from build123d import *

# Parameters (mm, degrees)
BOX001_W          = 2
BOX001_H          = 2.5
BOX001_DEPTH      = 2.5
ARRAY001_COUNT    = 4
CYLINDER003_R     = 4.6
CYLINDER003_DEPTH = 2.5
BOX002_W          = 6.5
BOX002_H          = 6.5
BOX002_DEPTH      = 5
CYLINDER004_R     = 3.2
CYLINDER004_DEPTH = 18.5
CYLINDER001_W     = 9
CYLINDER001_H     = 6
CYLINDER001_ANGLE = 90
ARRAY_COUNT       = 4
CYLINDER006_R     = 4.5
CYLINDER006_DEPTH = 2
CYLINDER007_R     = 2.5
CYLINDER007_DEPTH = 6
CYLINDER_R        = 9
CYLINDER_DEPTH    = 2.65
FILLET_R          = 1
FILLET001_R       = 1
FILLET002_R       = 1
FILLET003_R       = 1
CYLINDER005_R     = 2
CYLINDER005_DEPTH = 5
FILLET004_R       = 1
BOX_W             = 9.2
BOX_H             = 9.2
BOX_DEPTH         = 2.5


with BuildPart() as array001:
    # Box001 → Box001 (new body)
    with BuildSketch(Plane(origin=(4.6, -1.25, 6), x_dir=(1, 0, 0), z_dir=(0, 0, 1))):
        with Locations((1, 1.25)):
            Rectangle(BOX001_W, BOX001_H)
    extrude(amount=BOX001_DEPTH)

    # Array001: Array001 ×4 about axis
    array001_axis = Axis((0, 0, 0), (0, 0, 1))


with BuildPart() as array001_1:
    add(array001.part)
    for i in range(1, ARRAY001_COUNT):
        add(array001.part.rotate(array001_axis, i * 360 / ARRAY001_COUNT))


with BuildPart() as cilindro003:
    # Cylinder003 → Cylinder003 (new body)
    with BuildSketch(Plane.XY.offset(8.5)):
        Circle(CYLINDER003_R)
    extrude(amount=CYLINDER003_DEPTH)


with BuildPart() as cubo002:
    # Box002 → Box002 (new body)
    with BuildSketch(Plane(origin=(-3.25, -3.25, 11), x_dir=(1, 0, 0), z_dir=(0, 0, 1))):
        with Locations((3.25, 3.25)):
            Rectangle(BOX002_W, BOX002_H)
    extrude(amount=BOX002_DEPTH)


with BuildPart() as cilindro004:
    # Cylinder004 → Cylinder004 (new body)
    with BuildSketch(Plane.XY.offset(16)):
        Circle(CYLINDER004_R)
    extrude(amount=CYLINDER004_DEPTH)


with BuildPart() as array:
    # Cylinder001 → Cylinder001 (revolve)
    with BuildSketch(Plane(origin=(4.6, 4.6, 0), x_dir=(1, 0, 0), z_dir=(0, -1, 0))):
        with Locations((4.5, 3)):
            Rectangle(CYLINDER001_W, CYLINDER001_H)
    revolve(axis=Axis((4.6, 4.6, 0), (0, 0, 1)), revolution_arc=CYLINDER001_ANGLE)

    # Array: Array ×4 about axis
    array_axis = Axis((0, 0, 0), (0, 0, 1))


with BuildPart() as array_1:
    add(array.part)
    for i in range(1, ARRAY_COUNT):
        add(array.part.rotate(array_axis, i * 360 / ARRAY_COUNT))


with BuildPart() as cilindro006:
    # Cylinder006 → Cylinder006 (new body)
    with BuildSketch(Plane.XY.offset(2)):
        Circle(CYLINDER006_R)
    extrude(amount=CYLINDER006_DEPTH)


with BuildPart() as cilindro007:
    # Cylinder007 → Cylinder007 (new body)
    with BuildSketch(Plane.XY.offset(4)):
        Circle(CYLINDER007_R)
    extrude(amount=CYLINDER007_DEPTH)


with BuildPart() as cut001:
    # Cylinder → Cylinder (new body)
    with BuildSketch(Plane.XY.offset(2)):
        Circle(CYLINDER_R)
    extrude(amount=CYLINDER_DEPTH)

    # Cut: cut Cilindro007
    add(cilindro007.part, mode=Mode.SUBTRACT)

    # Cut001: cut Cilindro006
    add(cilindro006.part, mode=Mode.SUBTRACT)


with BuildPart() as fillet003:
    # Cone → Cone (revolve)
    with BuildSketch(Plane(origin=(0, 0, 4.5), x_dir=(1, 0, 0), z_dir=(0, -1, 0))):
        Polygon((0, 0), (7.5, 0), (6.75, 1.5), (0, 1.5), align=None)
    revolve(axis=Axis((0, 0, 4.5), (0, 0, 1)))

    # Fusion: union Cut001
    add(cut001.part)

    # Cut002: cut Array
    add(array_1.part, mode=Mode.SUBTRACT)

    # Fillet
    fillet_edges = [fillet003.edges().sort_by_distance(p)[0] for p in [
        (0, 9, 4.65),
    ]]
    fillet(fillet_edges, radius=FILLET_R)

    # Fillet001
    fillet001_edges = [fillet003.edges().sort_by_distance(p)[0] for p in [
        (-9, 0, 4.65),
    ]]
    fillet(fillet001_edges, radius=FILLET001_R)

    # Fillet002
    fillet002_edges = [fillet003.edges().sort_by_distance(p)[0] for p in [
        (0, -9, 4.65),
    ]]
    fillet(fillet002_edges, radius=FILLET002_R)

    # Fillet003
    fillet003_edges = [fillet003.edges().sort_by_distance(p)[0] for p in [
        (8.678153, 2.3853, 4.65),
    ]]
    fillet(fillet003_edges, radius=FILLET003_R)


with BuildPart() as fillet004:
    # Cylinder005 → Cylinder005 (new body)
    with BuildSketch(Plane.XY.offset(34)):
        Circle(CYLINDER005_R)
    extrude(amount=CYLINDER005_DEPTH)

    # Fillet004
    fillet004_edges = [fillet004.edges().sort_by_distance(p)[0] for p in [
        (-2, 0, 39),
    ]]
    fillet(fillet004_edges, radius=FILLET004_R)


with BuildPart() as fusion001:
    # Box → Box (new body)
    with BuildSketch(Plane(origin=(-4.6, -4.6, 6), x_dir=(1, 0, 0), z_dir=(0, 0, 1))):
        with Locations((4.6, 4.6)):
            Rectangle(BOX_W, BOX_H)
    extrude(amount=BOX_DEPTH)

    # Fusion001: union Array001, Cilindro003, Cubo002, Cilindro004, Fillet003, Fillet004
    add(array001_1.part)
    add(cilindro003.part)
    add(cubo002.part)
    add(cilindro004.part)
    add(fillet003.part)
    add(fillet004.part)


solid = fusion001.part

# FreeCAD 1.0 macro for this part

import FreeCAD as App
import Part
import Sketcher
Q = App.Units.Quantity


def edges_at(feature, points):
    """Names of the edges that pass closest to the given points."""
    edges = feature.Shape.Edges
    near = lambda p: min(range(len(edges)), key=lambda i: edges[i].distToShape(Part.Vertex(*p))[0])
    return sorted({f"Edge{near(p) + 1}" for p in points})


def add_polygon(sketch, points):
    """Adds a closed chain of lines whose ends are joined by coincident constraints."""
    first, n = sketch.GeometryCount, len(points)
    for a, b in zip(points, points[1:] + points[:1]):
        sketch.addGeometry(Part.LineSegment(App.Vector(*a, 0), App.Vector(*b, 0)), False)
    for i in range(n):
        sketch.addConstraint(Sketcher.Constraint("Coincident", first + i, 2, first + (i + 1) % n, 1))

doc = App.newDocument("Part")
body = doc.addObject("PartDesign::Body", "Body")

sketch1 = body.newObject("Sketcher::SketchObject", "Sketch")
sketch1.AttachmentSupport = (doc.getObject("XY_Plane"), [""])
sketch1.MapMode = "FlatFace"
sketch1.AttachmentOffset = App.Placement(App.Vector(0, 0, 6), App.Rotation())
add_polygon(sketch1, [(4.6, 1.2), (4.6, -1.2), (6.6, -1.2), (6.6, 1.2)])
sketch1.addConstraint([
    Sketcher.Constraint("Vertical", 0),
    Sketcher.Constraint("Horizontal", 1),
    Sketcher.Constraint("Vertical", 2),
    Sketcher.Constraint("Horizontal", 3),
    Sketcher.Constraint("DistanceX", 1, 1, 1, 2, Q("2 mm")),
    Sketcher.Constraint("DistanceY", 0, 2, 0, 1, Q("2.5 mm")),
    Sketcher.Constraint("DistanceX", -1, 1, 0, 2, Q("4.6 mm")),
    Sketcher.Constraint("DistanceY", 0, 2, -1, 1, Q("1.25 mm")),
])
pad1 = body.newObject("PartDesign::Pad", "Pad")
pad1.Profile = sketch1
pad1.Length = 2.5
body2 = doc.addObject("PartDesign::Body", "Body001")
body2.AllowCompound = True
doc.recompute()

body2.BaseFeature = body
doc.recompute()

body3 = doc.addObject("PartDesign::Body", "Body002")
body3.BaseFeature = body
body3.Placement = App.Placement(App.Vector(0, 0, 0), App.Rotation(App.Vector(0, 0, 1), 90))
boolean = body2.newObject("PartDesign::Boolean", "Boolean")
boolean.Type = "Fuse"
boolean.addObjects([body3])
doc.recompute()

body4 = doc.addObject("PartDesign::Body", "Body003")
body4.BaseFeature = body
body4.Placement = App.Placement(App.Vector(0, 0, 0), App.Rotation(App.Vector(0, 0, 1), 180))
boolean2 = body2.newObject("PartDesign::Boolean", "Boolean001")
boolean2.Type = "Fuse"
boolean2.addObjects([body4])
doc.recompute()

body.Placement = App.Placement(App.Vector(0, 0, 0), App.Rotation(App.Vector(0, 0, 1), 270))
boolean3 = body2.newObject("PartDesign::Boolean", "Boolean002")
boolean3.Type = "Fuse"
boolean3.addObjects([body])
body5 = doc.addObject("PartDesign::Body", "Body004")

sketch2 = body5.newObject("Sketcher::SketchObject", "Sketch001")
sketch2.AttachmentSupport = (doc.getObject("XY_Plane004"), [""])
sketch2.MapMode = "FlatFace"
sketch2.AttachmentOffset = App.Placement(App.Vector(0, 0, 8.5), App.Rotation())
sketch2.addGeometry(Part.Circle(App.Vector(0, 0, 0), App.Vector(0, 0, 1), 4.6), False)
sketch2.addConstraint([
    Sketcher.Constraint("Coincident", 0, 3, -1, 1),
    Sketcher.Constraint("Diameter", 0, Q("9.2 mm")),
])
pad2 = body5.newObject("PartDesign::Pad", "Pad001")
pad2.Profile = sketch2
pad2.Length = 2.5
body6 = doc.addObject("PartDesign::Body", "Body005")

sketch3 = body6.newObject("Sketcher::SketchObject", "Sketch002")
sketch3.AttachmentSupport = (doc.getObject("XY_Plane005"), [""])
sketch3.MapMode = "FlatFace"
sketch3.AttachmentOffset = App.Placement(App.Vector(0, 0, 11), App.Rotation())
add_polygon(sketch3, [(-3, 3), (-3, -3), (3, -3), (3, 3)])
sketch3.addConstraint([
    Sketcher.Constraint("Vertical", 0),
    Sketcher.Constraint("Horizontal", 1),
    Sketcher.Constraint("Vertical", 2),
    Sketcher.Constraint("Horizontal", 3),
    Sketcher.Constraint("Symmetric", 0, 2, 2, 2, -1, 1),
    Sketcher.Constraint("Equal", 3, 0),
    Sketcher.Constraint("DistanceX", 1, 1, 1, 2, Q("6.5 mm")),
])
pad3 = body6.newObject("PartDesign::Pad", "Pad002")
pad3.Profile = sketch3
pad3.Length = 5
body7 = doc.addObject("PartDesign::Body", "Body006")

sketch4 = body7.newObject("Sketcher::SketchObject", "Sketch003")
sketch4.AttachmentSupport = (doc.getObject("XY_Plane006"), [""])
sketch4.MapMode = "FlatFace"
sketch4.AttachmentOffset = App.Placement(App.Vector(0, 0, 16), App.Rotation())
sketch4.addGeometry(Part.Circle(App.Vector(0, 0, 0), App.Vector(0, 0, 1), 3.2), False)
sketch4.addConstraint([
    Sketcher.Constraint("Coincident", 0, 3, -1, 1),
    Sketcher.Constraint("Diameter", 0, Q("6.4 mm")),
])
pad4 = body7.newObject("PartDesign::Pad", "Pad003")
pad4.Profile = sketch4
pad4.Length = 18.5
body8 = doc.addObject("PartDesign::Body", "Body007")

sketch5 = body8.newObject("Sketcher::SketchObject", "Sketch004")
sketch5.AttachmentSupport = (doc.getObject("XZ_Plane007"), [""])
sketch5.MapMode = "FlatFace"
sketch5.AttachmentOffset = App.Placement(App.Vector(0, 0, -4.6), App.Rotation())
add_polygon(sketch5, [(5, 6), (5, 0), (14, 0), (14, 6)])
sketch5.addGeometry(Part.LineSegment(App.Vector(5, 0, 0), App.Vector(5, 6, 0)), True)
sketch5.addConstraint([
    Sketcher.Constraint("Vertical", 0),
    Sketcher.Constraint("Horizontal", 1),
    Sketcher.Constraint("Vertical", 2),
    Sketcher.Constraint("Horizontal", 3),
    Sketcher.Constraint("Vertical", 4),
    Sketcher.Constraint("Coincident", 4, 1, 0, 2),
    Sketcher.Constraint("PointOnObject", 0, 2, -1),
    Sketcher.Constraint("Horizontal", 2, 2, 4, 2),
    Sketcher.Constraint("DistanceX", 1, 1, 1, 2, Q("9 mm")),
    Sketcher.Constraint("DistanceY", 0, 2, 0, 1, Q("6 mm")),
    Sketcher.Constraint("DistanceX", -1, 1, 0, 2, Q("4.6 mm")),
])
revolution = body8.newObject("PartDesign::Revolution", "Revolution")
revolution.Profile = sketch5
revolution.ReferenceAxis = (sketch5, ["Axis0"])
revolution.Angle = 90
body9 = doc.addObject("PartDesign::Body", "Body008")
body9.AllowCompound = True
doc.recompute()

body9.BaseFeature = body8
doc.recompute()

body10 = doc.addObject("PartDesign::Body", "Body009")
body10.BaseFeature = body8
body10.Placement = App.Placement(App.Vector(0, 0, 0), App.Rotation(App.Vector(0, 0, 1), 90))
boolean4 = body9.newObject("PartDesign::Boolean", "Boolean003")
boolean4.Type = "Fuse"
boolean4.addObjects([body10])
doc.recompute()

body11 = doc.addObject("PartDesign::Body", "Body010")
body11.BaseFeature = body8
body11.Placement = App.Placement(App.Vector(0, 0, 0), App.Rotation(App.Vector(0, 0, 1), 180))
boolean5 = body9.newObject("PartDesign::Boolean", "Boolean004")
boolean5.Type = "Fuse"
boolean5.addObjects([body11])
doc.recompute()

body8.Placement = App.Placement(App.Vector(0, 0, 0), App.Rotation(App.Vector(0, 0, 1), 270))
boolean6 = body9.newObject("PartDesign::Boolean", "Boolean005")
boolean6.Type = "Fuse"
boolean6.addObjects([body8])
body12 = doc.addObject("PartDesign::Body", "Body011")

sketch6 = body12.newObject("Sketcher::SketchObject", "Sketch005")
sketch6.AttachmentSupport = (doc.getObject("XY_Plane011"), [""])
sketch6.MapMode = "FlatFace"
sketch6.AttachmentOffset = App.Placement(App.Vector(0, 0, 2), App.Rotation())
sketch6.addGeometry(Part.Circle(App.Vector(0, 0, 0), App.Vector(0, 0, 1), 4.5), False)
sketch6.addConstraint([
    Sketcher.Constraint("Coincident", 0, 3, -1, 1),
    Sketcher.Constraint("Diameter", 0, Q("9 mm")),
])
pad5 = body12.newObject("PartDesign::Pad", "Pad004")
pad5.Profile = sketch6
pad5.Length = 2
body13 = doc.addObject("PartDesign::Body", "Body012")

sketch7 = body13.newObject("Sketcher::SketchObject", "Sketch006")
sketch7.AttachmentSupport = (doc.getObject("XY_Plane012"), [""])
sketch7.MapMode = "FlatFace"
sketch7.AttachmentOffset = App.Placement(App.Vector(0, 0, 4), App.Rotation())
sketch7.addGeometry(Part.Circle(App.Vector(0, 0, 0), App.Vector(0, 0, 1), 2.5), False)
sketch7.addConstraint([
    Sketcher.Constraint("Coincident", 0, 3, -1, 1),
    Sketcher.Constraint("Diameter", 0, Q("5 mm")),
])
pad6 = body13.newObject("PartDesign::Pad", "Pad005")
pad6.Profile = sketch7
pad6.Length = 6
body14 = doc.addObject("PartDesign::Body", "Body013")

sketch8 = body14.newObject("Sketcher::SketchObject", "Sketch007")
sketch8.AttachmentSupport = (doc.getObject("XY_Plane013"), [""])
sketch8.MapMode = "FlatFace"
sketch8.AttachmentOffset = App.Placement(App.Vector(0, 0, 2), App.Rotation())
sketch8.addGeometry(Part.Circle(App.Vector(0, 0, 0), App.Vector(0, 0, 1), 9), False)
sketch8.addConstraint([
    Sketcher.Constraint("Coincident", 0, 3, -1, 1),
    Sketcher.Constraint("Diameter", 0, Q("18 mm")),
])
pad7 = body14.newObject("PartDesign::Pad", "Pad006")
pad7.Profile = sketch8
pad7.Length = 2.65
doc.recompute()

boolean7 = body14.newObject("PartDesign::Boolean", "Boolean006")
boolean7.Type = "Cut"
boolean7.addObjects([body13])
doc.recompute()

boolean8 = body14.newObject("PartDesign::Boolean", "Boolean007")
boolean8.Type = "Cut"
boolean8.addObjects([body12])
body15 = doc.addObject("PartDesign::Body", "Body014")

sketch9 = body15.newObject("Sketcher::SketchObject", "Sketch008")
sketch9.AttachmentSupport = (doc.getObject("XZ_Plane014"), [""])
sketch9.MapMode = "FlatFace"
add_polygon(sketch9, [(0, 4.5), (7.5, 4.5), (6.8, 6), (0, 6)])
sketch9.addConstraint([
    Sketcher.Constraint("Horizontal", 0),
    Sketcher.Constraint("Horizontal", 2),
    Sketcher.Constraint("Vertical", 3),
    Sketcher.Constraint("PointOnObject", 2, 2, -2),
    Sketcher.Constraint("DistanceX", 0, 1, 0, 2, Q("7.5 mm")),
    Sketcher.Constraint("DistanceY", 3, 2, 3, 1, Q("1.5 mm")),
    Sketcher.Constraint("DistanceY", -1, 1, 1, 2, Q("6 mm")),
    Sketcher.Constraint("DistanceX", 2, 2, 2, 1, Q("6.75 mm")),
])
revolution2 = body15.newObject("PartDesign::Revolution", "Revolution001")
revolution2.Profile = sketch9
revolution2.ReferenceAxis = (sketch9, ["V_Axis"])
revolution2.Angle = 360
doc.recompute()

boolean9 = body15.newObject("PartDesign::Boolean", "Boolean008")
boolean9.Type = "Fuse"
boolean9.addObjects([body14])
doc.recompute()

boolean10 = body15.newObject("PartDesign::Boolean", "Boolean009")
boolean10.Type = "Cut"
boolean10.addObjects([body9])
doc.recompute()

fillet = body15.newObject("PartDesign::Fillet", "Fillet")
fillet.Base = (boolean10, edges_at(boolean10, [(0, 9, 4.65)]))
fillet.Radius = 1
doc.recompute()

fillet2 = body15.newObject("PartDesign::Fillet", "Fillet001")
fillet2.Base = (fillet, edges_at(fillet, [(-9, 0, 4.65)]))
fillet2.Radius = 1
doc.recompute()

fillet3 = body15.newObject("PartDesign::Fillet", "Fillet002")
fillet3.Base = (fillet2, edges_at(fillet2, [(0, -9, 4.65)]))
fillet3.Radius = 1
doc.recompute()

fillet4 = body15.newObject("PartDesign::Fillet", "Fillet003")
fillet4.Base = (fillet3, edges_at(fillet3, [(9, 0, 4.65)]))
fillet4.Radius = 1
body16 = doc.addObject("PartDesign::Body", "Body015")

sketch10 = body16.newObject("Sketcher::SketchObject", "Sketch009")
sketch10.AttachmentSupport = (doc.getObject("XY_Plane015"), [""])
sketch10.MapMode = "FlatFace"
sketch10.AttachmentOffset = App.Placement(App.Vector(0, 0, 34), App.Rotation())
sketch10.addGeometry(Part.Circle(App.Vector(0, 0, 0), App.Vector(0, 0, 1), 2), False)
sketch10.addConstraint([
    Sketcher.Constraint("Coincident", 0, 3, -1, 1),
    Sketcher.Constraint("Diameter", 0, Q("4 mm")),
])
pad8 = body16.newObject("PartDesign::Pad", "Pad007")
pad8.Profile = sketch10
pad8.Length = 5
doc.recompute()

fillet5 = body16.newObject("PartDesign::Fillet", "Fillet004")
fillet5.Base = (pad8, edges_at(pad8, [(-2, 0, 39)]))
fillet5.Radius = 1
body17 = doc.addObject("PartDesign::Body", "Body016")

sketch11 = body17.newObject("Sketcher::SketchObject", "Sketch010")
sketch11.AttachmentSupport = (doc.getObject("XY_Plane016"), [""])
sketch11.MapMode = "FlatFace"
sketch11.AttachmentOffset = App.Placement(App.Vector(0, 0, 6), App.Rotation())
add_polygon(sketch11, [(-5, 5), (-5, -5), (5, -5), (5, 5)])
sketch11.addConstraint([
    Sketcher.Constraint("Vertical", 0),
    Sketcher.Constraint("Horizontal", 1),
    Sketcher.Constraint("Vertical", 2),
    Sketcher.Constraint("Horizontal", 3),
    Sketcher.Constraint("Symmetric", 0, 2, 2, 2, -1, 1),
    Sketcher.Constraint("Equal", 3, 0),
    Sketcher.Constraint("DistanceX", 1, 1, 1, 2, Q("9.2 mm")),
])
pad9 = body17.newObject("PartDesign::Pad", "Pad008")
pad9.Profile = sketch11
pad9.Length = 2.5
doc.recompute()

boolean11 = body17.newObject("PartDesign::Boolean", "Boolean010")
boolean11.Type = "Fuse"
boolean11.addObjects([body2])
doc.recompute()

boolean12 = body17.newObject("PartDesign::Boolean", "Boolean011")
boolean12.Type = "Fuse"
boolean12.addObjects([body5])
doc.recompute()

boolean13 = body17.newObject("PartDesign::Boolean", "Boolean012")
boolean13.Type = "Fuse"
boolean13.addObjects([body6])
doc.recompute()

boolean14 = body17.newObject("PartDesign::Boolean", "Boolean013")
boolean14.Type = "Fuse"
boolean14.addObjects([body7])
doc.recompute()

boolean15 = body17.newObject("PartDesign::Boolean", "Boolean014")
boolean15.Type = "Fuse"
boolean15.addObjects([body15])
doc.recompute()

boolean16 = body17.newObject("PartDesign::Boolean", "Boolean015")
boolean16.Type = "Fuse"
boolean16.addObjects([body16])

doc.recompute()
